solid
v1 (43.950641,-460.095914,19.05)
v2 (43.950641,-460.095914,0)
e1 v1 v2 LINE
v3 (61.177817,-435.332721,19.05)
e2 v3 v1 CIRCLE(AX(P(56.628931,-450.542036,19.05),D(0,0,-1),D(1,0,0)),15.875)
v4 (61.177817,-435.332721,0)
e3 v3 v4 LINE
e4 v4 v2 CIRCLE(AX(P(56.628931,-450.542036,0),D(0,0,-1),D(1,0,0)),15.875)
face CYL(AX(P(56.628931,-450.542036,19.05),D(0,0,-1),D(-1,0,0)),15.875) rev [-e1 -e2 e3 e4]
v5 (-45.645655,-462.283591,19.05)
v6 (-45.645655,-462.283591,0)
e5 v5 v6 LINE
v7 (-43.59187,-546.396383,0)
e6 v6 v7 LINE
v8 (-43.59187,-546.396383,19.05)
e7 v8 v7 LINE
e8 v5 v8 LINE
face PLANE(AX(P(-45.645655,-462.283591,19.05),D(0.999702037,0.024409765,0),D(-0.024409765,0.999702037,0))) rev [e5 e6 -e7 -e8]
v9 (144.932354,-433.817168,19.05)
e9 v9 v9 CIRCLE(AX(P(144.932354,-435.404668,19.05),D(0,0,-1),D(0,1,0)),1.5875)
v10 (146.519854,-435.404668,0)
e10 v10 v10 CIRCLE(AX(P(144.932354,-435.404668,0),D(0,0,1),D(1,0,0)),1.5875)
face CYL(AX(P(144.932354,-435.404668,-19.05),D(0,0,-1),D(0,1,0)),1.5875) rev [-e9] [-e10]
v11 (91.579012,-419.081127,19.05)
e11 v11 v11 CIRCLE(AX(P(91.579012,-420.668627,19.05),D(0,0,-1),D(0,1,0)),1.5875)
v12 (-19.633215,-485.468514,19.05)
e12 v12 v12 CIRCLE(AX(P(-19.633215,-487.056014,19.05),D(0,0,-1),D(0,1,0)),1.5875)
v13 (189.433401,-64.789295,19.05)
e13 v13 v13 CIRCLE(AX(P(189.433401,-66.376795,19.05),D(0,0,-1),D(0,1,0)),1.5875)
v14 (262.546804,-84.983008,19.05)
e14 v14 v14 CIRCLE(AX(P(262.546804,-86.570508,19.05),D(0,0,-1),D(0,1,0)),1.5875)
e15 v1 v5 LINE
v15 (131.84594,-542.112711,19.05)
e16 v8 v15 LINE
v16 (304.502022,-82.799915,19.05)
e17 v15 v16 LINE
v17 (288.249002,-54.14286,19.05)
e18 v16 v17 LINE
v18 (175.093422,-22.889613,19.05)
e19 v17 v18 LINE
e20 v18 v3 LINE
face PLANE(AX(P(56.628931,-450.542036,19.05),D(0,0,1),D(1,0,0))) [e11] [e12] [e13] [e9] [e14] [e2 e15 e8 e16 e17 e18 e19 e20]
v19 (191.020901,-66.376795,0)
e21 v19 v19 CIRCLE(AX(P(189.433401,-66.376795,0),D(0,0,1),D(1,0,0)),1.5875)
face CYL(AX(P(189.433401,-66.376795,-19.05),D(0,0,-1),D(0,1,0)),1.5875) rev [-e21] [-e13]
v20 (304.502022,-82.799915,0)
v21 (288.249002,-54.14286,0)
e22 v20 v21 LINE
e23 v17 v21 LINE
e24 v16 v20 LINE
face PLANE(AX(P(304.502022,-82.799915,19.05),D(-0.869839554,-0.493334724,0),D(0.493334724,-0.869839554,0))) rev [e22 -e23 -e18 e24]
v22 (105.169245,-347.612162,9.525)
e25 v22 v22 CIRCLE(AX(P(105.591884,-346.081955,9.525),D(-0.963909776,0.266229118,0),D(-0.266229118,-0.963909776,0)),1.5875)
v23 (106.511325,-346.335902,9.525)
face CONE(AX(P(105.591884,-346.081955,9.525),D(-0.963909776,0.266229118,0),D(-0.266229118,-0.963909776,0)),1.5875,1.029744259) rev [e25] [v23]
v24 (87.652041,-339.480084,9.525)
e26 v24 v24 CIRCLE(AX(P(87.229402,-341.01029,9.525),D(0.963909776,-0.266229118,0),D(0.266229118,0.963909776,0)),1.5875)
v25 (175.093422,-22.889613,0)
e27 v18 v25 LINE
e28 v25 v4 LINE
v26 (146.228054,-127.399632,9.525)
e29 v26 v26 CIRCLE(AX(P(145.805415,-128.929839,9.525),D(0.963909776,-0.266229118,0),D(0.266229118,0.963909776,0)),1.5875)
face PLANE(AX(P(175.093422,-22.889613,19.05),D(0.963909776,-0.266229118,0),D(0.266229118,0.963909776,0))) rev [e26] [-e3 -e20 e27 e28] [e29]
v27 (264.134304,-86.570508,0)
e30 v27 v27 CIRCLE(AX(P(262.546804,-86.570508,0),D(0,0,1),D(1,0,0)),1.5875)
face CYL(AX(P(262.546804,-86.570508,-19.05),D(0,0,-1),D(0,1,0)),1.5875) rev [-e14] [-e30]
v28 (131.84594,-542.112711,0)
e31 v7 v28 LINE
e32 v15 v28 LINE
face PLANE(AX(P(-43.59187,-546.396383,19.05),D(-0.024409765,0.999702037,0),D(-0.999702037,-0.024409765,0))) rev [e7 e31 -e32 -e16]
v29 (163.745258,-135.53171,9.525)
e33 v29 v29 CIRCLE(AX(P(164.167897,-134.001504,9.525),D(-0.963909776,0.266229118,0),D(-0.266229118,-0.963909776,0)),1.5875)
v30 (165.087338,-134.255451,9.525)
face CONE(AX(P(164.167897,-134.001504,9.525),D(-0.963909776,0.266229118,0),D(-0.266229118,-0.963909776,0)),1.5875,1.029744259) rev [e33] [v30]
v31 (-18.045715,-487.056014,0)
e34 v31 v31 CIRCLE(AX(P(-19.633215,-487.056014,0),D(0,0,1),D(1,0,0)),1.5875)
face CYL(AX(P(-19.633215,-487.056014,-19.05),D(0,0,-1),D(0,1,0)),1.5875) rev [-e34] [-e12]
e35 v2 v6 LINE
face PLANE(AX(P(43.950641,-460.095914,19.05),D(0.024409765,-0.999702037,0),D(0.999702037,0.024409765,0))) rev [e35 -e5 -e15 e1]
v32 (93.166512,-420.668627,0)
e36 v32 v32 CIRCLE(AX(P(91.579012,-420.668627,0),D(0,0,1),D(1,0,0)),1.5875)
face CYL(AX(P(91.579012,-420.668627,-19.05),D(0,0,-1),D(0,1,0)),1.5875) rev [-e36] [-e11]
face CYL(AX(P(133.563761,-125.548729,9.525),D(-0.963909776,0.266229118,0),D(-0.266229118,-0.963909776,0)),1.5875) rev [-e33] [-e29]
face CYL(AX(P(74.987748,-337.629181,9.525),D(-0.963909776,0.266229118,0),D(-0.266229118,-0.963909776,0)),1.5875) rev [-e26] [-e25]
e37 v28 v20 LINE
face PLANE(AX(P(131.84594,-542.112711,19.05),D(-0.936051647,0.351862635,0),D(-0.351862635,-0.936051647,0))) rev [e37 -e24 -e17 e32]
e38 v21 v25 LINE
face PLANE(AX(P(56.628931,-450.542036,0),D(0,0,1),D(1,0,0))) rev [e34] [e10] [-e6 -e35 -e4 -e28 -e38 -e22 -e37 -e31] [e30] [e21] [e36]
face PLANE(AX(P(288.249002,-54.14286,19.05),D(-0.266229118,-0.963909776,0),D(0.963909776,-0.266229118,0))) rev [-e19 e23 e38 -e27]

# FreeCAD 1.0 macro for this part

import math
import FreeCAD as App
import Part
import Sketcher

V = App.Vector
Q = App.Units.Quantity

doc = App.newDocument("Part")
body = doc.addObject("PartDesign::Body", "Body")

sketch1 = body.newObject("Sketcher::SketchObject", "Sketch")
sketch1.AttachmentSupport = (doc.getObject("XY_Plane"), [""])
sketch1.MapMode = "FlatFace"
sketch1.addGeometry([
    Part.LineSegment(V(-46, -462, 0), V(-44, -546, 0)),
    Part.LineSegment(V(-44, -546, 0), V(132, -542, 0)),
    Part.LineSegment(V(132, -542, 0), V(305, -83, 0)),
    Part.LineSegment(V(305, -83, 0), V(288, -54, 0)),
    Part.LineSegment(V(288, -54, 0), V(175, -23, 0)),
    Part.LineSegment(V(175, -23, 0), V(61, -435, 0)),
    Part.ArcOfCircle(Part.Circle(V(57, -451, 0), V(0, 0, 1), 16), math.radians(-143), math.radians(73)),
    Part.LineSegment(V(44, -460, 0), V(-46, -462, 0)),
], False)
sketch1.addConstraint([
    Sketcher.Constraint("Coincident", 0, 2, 1, 1),
    Sketcher.Constraint("Coincident", 1, 2, 2, 1),
    Sketcher.Constraint("Coincident", 2, 2, 3, 1),
    Sketcher.Constraint("Coincident", 3, 2, 4, 1),
    Sketcher.Constraint("Coincident", 4, 2, 5, 1),
    Sketcher.Constraint("Coincident", 5, 2, 6, 2),
    Sketcher.Constraint("Coincident", 6, 1, 7, 1),
    Sketcher.Constraint("Coincident", 7, 2, 0, 1),
    Sketcher.Constraint("Perpendicular", 0, 1),
    Sketcher.Constraint("Perpendicular", 4, 5),
    Sketcher.Constraint("Parallel", 1, 7),
    Sketcher.Constraint("Radius", 6, Q("0.625 in")),
    Sketcher.Constraint("Angle", 3, Q("119.56 deg")),
    Sketcher.Constraint("Angle", 4, Q("164.56 deg")),
    Sketcher.Constraint("Distance", 1, 175.490099),
    Sketcher.Constraint("Distance", 7, 89.623),
    Sketcher.Constraint("DistanceX", -1, 1, 3, 2, 288.249002),
    Sketcher.Constraint("DistanceX", 0, 2, 6, 3, 100.2208),
    Sketcher.Constraint("DistanceX", 4, 2, 2, 2, 129.4086),
    Sketcher.Constraint("DistanceY", 2, 2, 4, 2, 59.910302),
    Sketcher.Constraint("DistanceX", 6, 1, 1, 2, 87.895299),
    Sketcher.Constraint("DistanceY", 6, 1, 4, 2, 437.206301),
    Sketcher.Constraint("DistanceX", -1, 1, 6, 3, 56.628931),
    Sketcher.Constraint("DistanceY", 1, 2, -1, 1, 542.112711),
    Sketcher.Constraint("DistanceY", 3, 2, -1, 1, 54.14286),
])
pad1 = body.newObject("PartDesign::Pad", "Pad")
pad1.Profile = sketch1
pad1.Length = Q("0.75 in")

sketch2 = body.newObject("Sketcher::SketchObject", "Sketch001")
sketch2.Placement = App.Placement(V(156.315458, -43.173882, 0), App.Rotation(V(0, 0, -1), V(-0.266229118, -0.963909776, 0), V(-0.963909776, 0.266229118, 0), "ZXY"))
sketch2.addGeometry([
    Part.Circle(V(-321.4, 85.5, 0), V(0, 0, 1), 1.6),
    Part.Circle(V(-9.5, 85.5, 0), V(0, 0, 1), 1.6),
    Part.Circle(V(-9.5, 305.5, 0), V(0, 0, 1), 1.6),
    Part.Circle(V(9.5, 63.5, 0), V(0, 0, 1), 1.6),
    Part.Circle(V(9.5, 327.5, 0), V(0, 0, 1), 1.6),
    Part.Circle(V(-340.5, 327.5, 0), V(0, 0, 1), 1.6),
    Part.Circle(V(-340.5, 63.5, 0), V(0, 0, 1), 1.6),
    Part.Circle(V(-321.4, 305.5, 0), V(0, 0, 1), 1.6),
], False)
sketch2.addConstraint([
    Sketcher.Constraint("Equal", 0, 1),
    Sketcher.Constraint("Equal", 1, 2),
    Sketcher.Constraint("Equal", 2, 3),
    Sketcher.Constraint("Equal", 3, 4),
    Sketcher.Constraint("Equal", 4, 5),
    Sketcher.Constraint("Equal", 5, 6),
    Sketcher.Constraint("Equal", 6, 7),
    Sketcher.Constraint("Horizontal", 0, 3, 1, 3),
    Sketcher.Constraint("Horizontal", 4, 3, 5, 3),
    Sketcher.Constraint("Horizontal", 3, 3, 6, 3),
    Sketcher.Constraint("Horizontal", 2, 3, 7, 3),
    Sketcher.Constraint("Vertical", 1, 3, 2, 3),
    Sketcher.Constraint("Vertical", 3, 3, 4, 3),
    Sketcher.Constraint("Vertical", 5, 3, 6, 3),
    Sketcher.Constraint("Vertical", 0, 3, 7, 3),
    Sketcher.Constraint("Diameter", 0, Q("0.125 in")),
    Sketcher.Constraint("DistanceX", 1, 3, 3, 3, Q("0.75 in")),
    Sketcher.Constraint("DistanceX", 5, 3, 0, 3, Q("0.75 in")),
    Sketcher.Constraint("DistanceX", 1, 3, -1, 1, Q("0.375 in")),
    Sketcher.Constraint("DistanceX", 0, 3, -1, 1, 321.425),
    Sketcher.Constraint("DistanceY", -1, 1, 3, 3, 63.456979),
    Sketcher.Constraint("DistanceY", -1, 1, 4, 3, 327.482252),
    Sketcher.Constraint("DistanceY", 1, 3, 2, 3, 220.021061),
    Sketcher.Constraint("DistanceY", -1, 1, 0, 3, 85.459085),
])
doc.recompute()
hole = body.newObject("PartDesign::Hole", "Hole")
hole.Profile = sketch2
hole.ThreadType = "None"
hole.Diameter = Q("0.125 in")
hole.DepthType = "Dimension"
hole.Depth = Q("1.25 in")
hole.DrillPoint = "Angled"
hole.DrillPointAngle = 118
hole.HoleCutType = "Countersink"
hole.HoleCutDiameter = Q("0.4 in")
hole.HoleCutCountersinkAngle = 82

sketch3 = body.newObject("Sketcher::SketchObject", "Sketch002")
sketch3.AttachmentSupport = (doc.getObject("XY_Plane"), [""])
sketch3.MapMode = "FlatFace"
sketch3.AttachmentOffset = App.Placement(V(0, 0, -0.75 * 25.4), App.Rotation())
sketch3.addGeometry([
    Part.Circle(V(189.4, -66.4, 0), V(0, 0, 1), 1.6),
    Part.Circle(V(262.5, -86.6, 0), V(0, 0, 1), 1.6),
    Part.Circle(V(91.6, -420.7, 0), V(0, 0, 1), 1.6),
    Part.Circle(V(144.9, -435.4, 0), V(0, 0, 1), 1.6),
    Part.Circle(V(-19.6, -487.1, 0), V(0, 0, 1), 1.6),
    Part.Circle(V(-17.4, -577.5, 0), V(0, 0, 1), 1.6),
    Part.Circle(V(-52.3, -578.4, 0), V(0, 0, 1), 1.6),
    Part.Circle(V(-275.9, -583.8, 0), V(0, 0, 1), 1.6),
    Part.Circle(V(-54.5, -487.9, 0), V(0, 0, 1), 1.6),
    Part.Circle(V(-278.1, -493.4, 0), V(0, 0, 1), 1.6),
], False)
sketch3.addConstraint([
    Sketcher.Constraint("Equal", 0, 1),
    Sketcher.Constraint("Equal", 1, 2),
    Sketcher.Constraint("Equal", 2, 3),
    Sketcher.Constraint("Equal", 3, 4),
    Sketcher.Constraint("Equal", 4, 5),
    Sketcher.Constraint("Equal", 5, 6),
    Sketcher.Constraint("Equal", 6, 7),
    Sketcher.Constraint("Equal", 7, 8),
    Sketcher.Constraint("Equal", 8, 9),
    Sketcher.Constraint("Diameter", 0, Q("0.125 in")),
    Sketcher.Constraint("DistanceX", -1, 1, 0, 3, 189.433401),
    Sketcher.Constraint("DistanceY", 5, 3, 4, 3, 90.4609),
    Sketcher.Constraint("DistanceY", 6, 3, 2, 3, 157.700798),
    Sketcher.Constraint("DistanceY", 6, 3, 8, 3, 90.4609),
    Sketcher.Constraint("DistanceY", 7, 3, 9, 3, 90.4609),
    Sketcher.Constraint("DistanceX", 9, 3, 6, 3, 225.788999),
    Sketcher.Constraint("DistanceX", -1, 1, 2, 3, 91.579012),
    Sketcher.Constraint("DistanceX", 6, 3, -1, 1, 52.339022),
    Sketcher.Constraint("DistanceX", 8, 3, -1, 1, 54.547809),
    Sketcher.Constraint("DistanceY", 2, 3, 0, 3, 354.291832),
    Sketcher.Constraint("DistanceY", 2, 3, 1, 3, 334.098119),
    Sketcher.Constraint("DistanceY", 3, 3, 2, 3, 14.73604),
    Sketcher.Constraint("DistanceX", 3, 3, 1, 3, 117.61445),
    Sketcher.Constraint("DistanceX", 4, 3, 3, 3, 164.565569),
    Sketcher.Constraint("DistanceY", 4, 3, 0, 3, 420.679219),
    Sketcher.Constraint("DistanceX", 5, 3, 2, 3, 109.00344),
    Sketcher.Constraint("DistanceX", 5, 3, 3, 3, 162.356782),
    Sketcher.Constraint("DistanceX", 7, 3, 6, 3, 223.580211),
    Sketcher.Constraint("DistanceY", 7, 3, 4, 3, 96.772578),
    Sketcher.Constraint("DistanceY", 0, 3, -1, 1, 66.376795),
])
doc.recompute()
hole2 = body.newObject("PartDesign::Hole", "Hole001")
hole2.Profile = sketch3
hole2.ThreadType = "None"
hole2.Diameter = Q("0.125 in")
hole2.DepthType = "Dimension"
hole2.Depth = Q("1.5 in")
hole2.DrillPoint = "Angled"
hole2.DrillPointAngle = 118
hole2.HoleCutType = "Countersink"
hole2.HoleCutDiameter = Q("0.4 in")
hole2.HoleCutCountersinkAngle = 82
hole2.Reversed = True

doc.recompute()
